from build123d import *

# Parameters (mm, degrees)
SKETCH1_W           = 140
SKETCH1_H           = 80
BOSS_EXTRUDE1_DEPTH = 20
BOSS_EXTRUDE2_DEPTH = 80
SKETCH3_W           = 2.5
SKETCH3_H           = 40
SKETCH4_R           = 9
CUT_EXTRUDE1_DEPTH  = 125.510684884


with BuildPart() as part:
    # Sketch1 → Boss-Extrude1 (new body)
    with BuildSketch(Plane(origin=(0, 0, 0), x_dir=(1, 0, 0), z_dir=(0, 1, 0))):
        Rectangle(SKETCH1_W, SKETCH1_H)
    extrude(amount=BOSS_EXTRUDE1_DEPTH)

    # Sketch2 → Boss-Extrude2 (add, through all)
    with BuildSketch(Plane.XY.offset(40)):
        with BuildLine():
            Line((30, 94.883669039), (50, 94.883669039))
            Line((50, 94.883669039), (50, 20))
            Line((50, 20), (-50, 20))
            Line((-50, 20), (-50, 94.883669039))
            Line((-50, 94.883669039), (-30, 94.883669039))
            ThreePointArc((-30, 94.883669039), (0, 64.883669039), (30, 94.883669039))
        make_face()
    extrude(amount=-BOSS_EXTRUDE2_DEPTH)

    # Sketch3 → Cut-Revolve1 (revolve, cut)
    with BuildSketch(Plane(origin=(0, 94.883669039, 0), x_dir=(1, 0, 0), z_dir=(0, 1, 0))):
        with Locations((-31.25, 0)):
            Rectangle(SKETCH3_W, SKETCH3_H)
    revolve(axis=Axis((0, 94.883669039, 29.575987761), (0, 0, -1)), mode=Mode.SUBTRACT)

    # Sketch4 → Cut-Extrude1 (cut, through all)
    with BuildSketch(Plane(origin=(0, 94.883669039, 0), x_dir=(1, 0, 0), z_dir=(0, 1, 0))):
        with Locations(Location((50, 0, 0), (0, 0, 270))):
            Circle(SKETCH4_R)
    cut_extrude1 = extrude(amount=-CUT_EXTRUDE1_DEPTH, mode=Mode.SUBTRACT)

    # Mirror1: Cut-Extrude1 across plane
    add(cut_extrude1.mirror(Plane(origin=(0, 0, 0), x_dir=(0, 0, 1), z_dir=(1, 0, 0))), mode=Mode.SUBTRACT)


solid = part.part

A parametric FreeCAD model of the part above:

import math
import FreeCAD as App
import Part
import Sketcher
from FreeCAD import Vector
Q = App.Units.Quantity

doc = App.newDocument("Part")
params = doc.addObject("Spreadsheet::Sheet", "Params")
for row, (alias, value) in enumerate([
    ("sketch1_width", "140 mm"),
    ("sketch1_height", "80 mm"),
    ("pad1_length", "20 mm"),
    ("sketch2_radius", "30 mm"),
    ("sketch2_width", "20 mm"),
    ("pad2_length", "80 mm"),
    ("sketch3_height", "40 mm"),
    ("sketch3_width", "2.5 mm"),
    ("groove_angle", "360 deg"),
    ("sketch4_diameter", "18 mm"),
], start=1):
    params.set(f"A{row}", alias)
    params.set(f"B{row}", "=" + value)
    params.setAlias(f"B{row}", alias)

body = doc.addObject("PartDesign::Body", "Body")

# Sketch on XZ plane
sketch1 = body.newObject("Sketcher::SketchObject", "Sketch")
sketch1.AttachmentSupport = (doc.getObject("XZ_Plane"), [""])
sketch1.MapMode = "FlatFace"
sketch1.addGeometry(Part.LineSegment(Vector(-70, -40, 0), Vector(-70, 40, 0)), False)
sketch1.addGeometry(Part.LineSegment(Vector(-70, 40, 0), Vector(70, 40, 0)), False)
sketch1.addGeometry(Part.LineSegment(Vector(70, 40, 0), Vector(70, -40, 0)), False)
sketch1.addGeometry(Part.LineSegment(Vector(70, -40, 0), Vector(-70, -40, 0)), False)
sketch1.addConstraint(Sketcher.Constraint("Coincident", 0, 2, 1, 1))
sketch1.addConstraint(Sketcher.Constraint("Coincident", 1, 2, 2, 1))
sketch1.addConstraint(Sketcher.Constraint("Coincident", 2, 2, 3, 1))
sketch1.addConstraint(Sketcher.Constraint("Coincident", 3, 2, 0, 1))
sketch1.addConstraint(Sketcher.Constraint("Vertical", 0))
sketch1.addConstraint(Sketcher.Constraint("Horizontal", 1))
sketch1.addConstraint(Sketcher.Constraint("Vertical", 2))
sketch1.addConstraint(Sketcher.Constraint("Horizontal", 3))
sketch1.addConstraint(Sketcher.Constraint("Symmetric", 0, 2, 2, 2, -1, 1))
sketch1.addConstraint(Sketcher.Constraint("DistanceX", 1, 1, 1, 2, Q("140 mm")))
sketch1.addConstraint(Sketcher.Constraint("DistanceY", 0, 1, 0, 2, Q("80 mm")))
sketch1.setExpression("Constraints[9]", "Params.sketch1_width")
sketch1.setExpression("Constraints[10]", "Params.sketch1_height")
pad1 = body.newObject("PartDesign::Pad", "Pad")
pad1.Profile = sketch1
pad1.setExpression("Length", "Params.pad1_length")
pad1.Reversed = True

# Sketch on XY plane
sketch2 = body.newObject("Sketcher::SketchObject", "Sketch001")
sketch2.AttachmentSupport = (doc.getObject("XY_Plane"), [""])
sketch2.MapMode = "FlatFace"
sketch2.AttachmentOffset = App.Placement(Vector(0, 0, 40), App.Rotation())
sketch2.addGeometry(Part.LineSegment(Vector(50, 95, 0), Vector(30, 95, 0)), False)
sketch2.addGeometry(Part.ArcOfCircle(Part.Circle(Vector(0, 95, 0), Vector(0, 0, 1), 30), math.radians(180), math.radians(360)), False)
sketch2.addGeometry(Part.LineSegment(Vector(-30, 95, 0), Vector(-50, 95, 0)), False)
sketch2.addGeometry(Part.LineSegment(Vector(-50, 95, 0), Vector(-50, 20, 0)), False)
sketch2.addGeometry(Part.LineSegment(Vector(-50, 20, 0), Vector(50, 20, 0)), False)
sketch2.addGeometry(Part.LineSegment(Vector(50, 20, 0), Vector(50, 95, 0)), False)
sketch2.addConstraint(Sketcher.Constraint("Coincident", 0, 2, 1, 2))
sketch2.addConstraint(Sketcher.Constraint("Coincident", 1, 1, 2, 1))
sketch2.addConstraint(Sketcher.Constraint("Coincident", 2, 2, 3, 1))
sketch2.addConstraint(Sketcher.Constraint("Coincident", 3, 2, 4, 1))
sketch2.addConstraint(Sketcher.Constraint("Coincident", 4, 2, 5, 1))
sketch2.addConstraint(Sketcher.Constraint("Coincident", 5, 2, 0, 1))
sketch2.addConstraint(Sketcher.Constraint("Horizontal", 0))
sketch2.addConstraint(Sketcher.Constraint("Horizontal", 2))
sketch2.addConstraint(Sketcher.Constraint("Vertical", 3))
sketch2.addConstraint(Sketcher.Constraint("Horizontal", 4))
sketch2.addConstraint(Sketcher.Constraint("Vertical", 5))
sketch2.addConstraint(Sketcher.Constraint("Symmetric", 0, 2, 1, 1, -2))
sketch2.addConstraint(Sketcher.Constraint("Horizontal", 1, 3, 0, 2))
sketch2.addConstraint(Sketcher.Constraint("Equal", 0, 2))
sketch2.addConstraint(Sketcher.Constraint("Radius", 1, Q("30 mm")))
sketch2.addConstraint(Sketcher.Constraint("DistanceX", 0, 2, 0, 1, Q("20 mm")))
sketch2.addConstraint(Sketcher.Constraint("DistanceY", -1, 1, 3, 2, Q("20 mm")))
sketch2.addConstraint(Sketcher.Constraint("DistanceY", 3, 2, 3, 1, Q("74.883669 mm")))
sketch2.setExpression("Constraints[14]", "Params.sketch2_radius")
sketch2.setExpression("Constraints[15]", "Params.sketch2_width")
pad2 = body.newObject("PartDesign::Pad", "Pad001")
pad2.Profile = sketch2
pad2.setExpression("Length", "Params.pad2_length")
pad2.Reversed = True

# Sketch on XZ plane
sketch3 = body.newObject("Sketcher::SketchObject", "Sketch002")
sketch3.AttachmentSupport = (doc.getObject("XZ_Plane"), [""])
sketch3.MapMode = "FlatFace"
sketch3.AttachmentOffset = App.Placement(Vector(0, 0, -94.883669), App.Rotation())
sketch3.addGeometry(Part.LineSegment(Vector(-32.5, -20, 0), Vector(-32.5, 20, 0)), False)
sketch3.addGeometry(Part.LineSegment(Vector(-32.5, 20, 0), Vector(-30, 20, 0)), False)
sketch3.addGeometry(Part.LineSegment(Vector(-30, 20, 0), Vector(-30, -20, 0)), False)
sketch3.addGeometry(Part.LineSegment(Vector(-30, -20, 0), Vector(-32.5, -20, 0)), False)
sketch3.addConstraint(Sketcher.Constraint("Coincident", 0, 2, 1, 1))
sketch3.addConstraint(Sketcher.Constraint("Coincident", 1, 2, 2, 1))
sketch3.addConstraint(Sketcher.Constraint("Coincident", 2, 2, 3, 1))
sketch3.addConstraint(Sketcher.Constraint("Coincident", 3, 2, 0, 1))
sketch3.addConstraint(Sketcher.Constraint("Vertical", 0))
sketch3.addConstraint(Sketcher.Constraint("Horizontal", 1))
sketch3.addConstraint(Sketcher.Constraint("Vertical", 2))
sketch3.addConstraint(Sketcher.Constraint("Horizontal", 3))
sketch3.addConstraint(Sketcher.Constraint("DistanceY", 0, 1, 0, 2, Q("40 mm")))
sketch3.addConstraint(Sketcher.Constraint("DistanceX", 1, 1, 1, 2, Q("2.5 mm")))
sketch3.addConstraint(Sketcher.Constraint("DistanceY", -1, 1, 0, 2, Q("20 mm")))
sketch3.addConstraint(Sketcher.Constraint("DistanceX", 1, 2, -1, 1, Q("30 mm")))
sketch3.setExpression("Constraints[8]", "Params.sketch3_height")
sketch3.setExpression("Constraints[9]", "Params.sketch3_width")
groove = body.newObject("PartDesign::Groove", "Groove")
groove.Profile = sketch3
groove.ReferenceAxis = (sketch3, ["V_Axis"])
groove.setExpression("Angle", "Params.groove_angle")

# Sketch on XZ plane
sketch4 = body.newObject("Sketcher::SketchObject", "Sketch003")
sketch4.AttachmentSupport = (doc.getObject("XZ_Plane"), [""])
sketch4.MapMode = "FlatFace"
sketch4.AttachmentOffset = App.Placement(Vector(0, 0, -94.883669), App.Rotation())
sketch4.addGeometry(Part.Circle(Vector(50, 0, 0), Vector(0, 0, 1), 9), False)
sketch4.addConstraint(Sketcher.Constraint("PointOnObject", 0, 3, -1))
sketch4.addConstraint(Sketcher.Constraint("Diameter", 0, Q("18 mm")))
sketch4.addConstraint(Sketcher.Constraint("DistanceX", -1, 1, 0, 3, Q("50 mm")))
sketch4.setExpression("Constraints[1]", "Params.sketch4_diameter")
pocket1 = body.newObject("PartDesign::Pocket", "Pocket")
pocket1.Profile = sketch4
pocket1.Type = "ThroughAll"
pocket1.Reversed = True
doc.recompute()

mirrored = body.newObject("PartDesign::Mirrored", "Mirrored")
mirrored.Originals = [pocket1]
mirrored.MirrorPlane = (doc.getObject("YZ_Plane"), [""])
body.Tip = mirrored

doc.recompute()
